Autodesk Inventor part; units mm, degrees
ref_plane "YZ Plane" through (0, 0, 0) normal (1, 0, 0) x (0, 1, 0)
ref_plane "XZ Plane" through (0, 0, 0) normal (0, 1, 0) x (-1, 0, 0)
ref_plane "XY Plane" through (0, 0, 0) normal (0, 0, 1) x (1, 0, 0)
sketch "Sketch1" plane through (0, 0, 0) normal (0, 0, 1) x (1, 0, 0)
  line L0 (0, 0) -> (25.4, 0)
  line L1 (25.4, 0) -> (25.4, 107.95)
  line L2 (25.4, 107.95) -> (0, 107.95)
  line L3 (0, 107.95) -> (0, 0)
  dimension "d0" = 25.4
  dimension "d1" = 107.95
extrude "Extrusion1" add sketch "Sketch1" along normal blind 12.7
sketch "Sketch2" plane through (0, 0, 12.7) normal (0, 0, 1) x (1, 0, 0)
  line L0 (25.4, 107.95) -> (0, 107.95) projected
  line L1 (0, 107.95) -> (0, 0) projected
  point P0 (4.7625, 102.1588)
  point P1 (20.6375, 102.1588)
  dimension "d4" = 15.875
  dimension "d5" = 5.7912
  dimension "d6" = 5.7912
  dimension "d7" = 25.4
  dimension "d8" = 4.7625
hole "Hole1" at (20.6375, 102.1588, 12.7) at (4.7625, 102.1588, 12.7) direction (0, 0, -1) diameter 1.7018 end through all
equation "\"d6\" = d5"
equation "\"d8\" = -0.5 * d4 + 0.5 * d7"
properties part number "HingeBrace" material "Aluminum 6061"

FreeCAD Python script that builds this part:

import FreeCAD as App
import Part
import Sketcher

V = App.Vector
Q = App.Units.Quantity


def add_polygon(sketch, points):
    """Adds a closed chain of lines whose ends are joined by coincident constraints."""
    first, n = sketch.GeometryCount, len(points)
    for a, b in zip(points, points[1:] + points[:1]):
        sketch.addGeometry(Part.LineSegment(App.Vector(*a, 0), App.Vector(*b, 0)), False)
    for i in range(n):
        sketch.addConstraint(Sketcher.Constraint("Coincident", first + i, 2, first + (i + 1) % n, 1))

doc = App.newDocument("Part")
body = doc.addObject("PartDesign::Body", "Body")

# Sketch on XY plane
sketch1 = body.newObject("Sketcher::SketchObject", "Sketch")
sketch1.AttachmentSupport = (doc.getObject("XY_Plane"), [""])
sketch1.MapMode = "FlatFace"
add_polygon(sketch1, [(0, 108), (0, 0), (25, 0), (25, 108)])  # lines 0-3
sketch1.addConstraint([
    Sketcher.Constraint("Vertical", 0),
    Sketcher.Constraint("Horizontal", 1),
    Sketcher.Constraint("Vertical", 2),
    Sketcher.Constraint("Horizontal", 3),
    Sketcher.Constraint("Coincident", 0, 2, -1, 1),
    Sketcher.Constraint("DistanceX", 1, 1, 1, 2, Q("1 in")),
    Sketcher.Constraint("DistanceY", 0, 2, 0, 1, Q("4.25 in")),
])
pad1 = body.newObject("PartDesign::Pad", "Pad")
pad1.Profile = sketch1
pad1.Length = Q("0.5 in")

# Sketch on XY plane
sketch2 = body.newObject("Sketcher::SketchObject", "Sketch001")
sketch2.AttachmentSupport = (doc.getObject("XY_Plane"), [""])
sketch2.MapMode = "FlatFace"
sketch2.AttachmentOffset = App.Placement(V(0, 0, 0.5 * 25.4), App.Rotation())
sketch2.addGeometry([
    Part.Circle(V(20.6, 102.2, 0), V(0, 0, 1), 0.9),
    Part.Circle(V(4.8, 102.2, 0), V(0, 0, 1), 0.9),
], False)
sketch2.addConstraint([
    Sketcher.Constraint("Equal", 0, 1),
    Sketcher.Constraint("Horizontal", 0, 3, 1, 3),
    Sketcher.Constraint("Diameter", 0, Q("0.067 in")),
    Sketcher.Constraint("DistanceX", -1, 1, 0, 3, Q("0.8125 in")),
    Sketcher.Constraint("DistanceY", -1, 1, 0, 3, Q("4.022 in")),
    Sketcher.Constraint("DistanceX", -1, 1, 1, 3, Q("0.1875 in")),
])
doc.recompute()
hole = body.newObject("PartDesign::Hole", "Hole")
hole.Profile = sketch2
hole.ThreadType = "None"
hole.Diameter = Q("0.067 in")
hole.DepthType = "ThroughAll"

doc.recompute()
